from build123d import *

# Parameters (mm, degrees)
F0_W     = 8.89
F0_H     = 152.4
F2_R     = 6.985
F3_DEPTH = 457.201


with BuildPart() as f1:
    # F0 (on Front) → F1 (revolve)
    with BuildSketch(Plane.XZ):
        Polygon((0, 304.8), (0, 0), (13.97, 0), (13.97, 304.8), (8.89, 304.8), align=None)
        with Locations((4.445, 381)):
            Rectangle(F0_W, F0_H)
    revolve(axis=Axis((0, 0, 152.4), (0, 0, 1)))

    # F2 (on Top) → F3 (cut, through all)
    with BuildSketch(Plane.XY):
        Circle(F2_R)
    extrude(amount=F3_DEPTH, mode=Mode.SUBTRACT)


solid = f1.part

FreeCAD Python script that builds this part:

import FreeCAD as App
import Part
import Sketcher

V = App.Vector
Q = App.Units.Quantity

doc = App.newDocument("Part")
body = doc.addObject("PartDesign::Body", "Body")

sketch1 = body.newObject("Sketcher::SketchObject", "Sketch")
sketch1.AttachmentSupport = (doc.getObject("XZ_Plane"), [""])
sketch1.MapMode = "FlatFace"
sketch1.addGeometry([
    Part.LineSegment(V(0, 0, 0), V(14, 0, 0)),
    Part.LineSegment(V(14, 0, 0), V(14, 305, 0)),
    Part.LineSegment(V(14, 305, 0), V(9, 305, 0)),
    Part.LineSegment(V(9, 305, 0), V(9, 457, 0)),
    Part.LineSegment(V(9, 457, 0), V(0, 457, 0)),
    Part.LineSegment(V(0, 457, 0), V(0, 0, 0)),
], False)
sketch1.addConstraint([
    Sketcher.Constraint("Coincident", 0, 2, 1, 1),
    Sketcher.Constraint("Coincident", 1, 2, 2, 1),
    Sketcher.Constraint("Coincident", 2, 2, 3, 1),
    Sketcher.Constraint("Coincident", 3, 2, 4, 1),
    Sketcher.Constraint("Coincident", 4, 2, 5, 1),
    Sketcher.Constraint("Coincident", 5, 2, 0, 1),
    Sketcher.Constraint("Horizontal", 0),
    Sketcher.Constraint("Vertical", 1),
    Sketcher.Constraint("Horizontal", 2),
    Sketcher.Constraint("Vertical", 3),
    Sketcher.Constraint("Horizontal", 4),
    Sketcher.Constraint("Vertical", 5),
    Sketcher.Constraint("Coincident", 5, 2, -1, 1),
    Sketcher.Constraint("DistanceY", 1, 1, 1, 2, Q("12 in")),
    Sketcher.Constraint("DistanceY", 3, 1, 3, 2, Q("6 in")),
    Sketcher.Constraint("DistanceX", 2, 2, 2, 1, Q("0.2 in")),
    Sketcher.Constraint("DistanceX", 0, 1, 0, 2, Q("0.55 in")),
])
revolution = body.newObject("PartDesign::Revolution", "Revolution")
revolution.Profile = sketch1
revolution.ReferenceAxis = (sketch1, ["V_Axis"])
revolution.Angle = 360

sketch2 = body.newObject("Sketcher::SketchObject", "Sketch001")
sketch2.AttachmentSupport = (doc.getObject("XY_Plane"), [""])
sketch2.MapMode = "FlatFace"
sketch2.addGeometry(Part.Circle(V(0, 0, 0), V(0, 0, 1), 7), False)
sketch2.addConstraint([
    Sketcher.Constraint("Coincident", 0, 3, -1, 1),
    Sketcher.Constraint("Diameter", 0, Q("0.55 in")),
])
pocket1 = body.newObject("PartDesign::Pocket", "Pocket")
pocket1.Profile = sketch2
pocket1.Type = "ThroughAll"
pocket1.Reversed = True

doc.recompute()
